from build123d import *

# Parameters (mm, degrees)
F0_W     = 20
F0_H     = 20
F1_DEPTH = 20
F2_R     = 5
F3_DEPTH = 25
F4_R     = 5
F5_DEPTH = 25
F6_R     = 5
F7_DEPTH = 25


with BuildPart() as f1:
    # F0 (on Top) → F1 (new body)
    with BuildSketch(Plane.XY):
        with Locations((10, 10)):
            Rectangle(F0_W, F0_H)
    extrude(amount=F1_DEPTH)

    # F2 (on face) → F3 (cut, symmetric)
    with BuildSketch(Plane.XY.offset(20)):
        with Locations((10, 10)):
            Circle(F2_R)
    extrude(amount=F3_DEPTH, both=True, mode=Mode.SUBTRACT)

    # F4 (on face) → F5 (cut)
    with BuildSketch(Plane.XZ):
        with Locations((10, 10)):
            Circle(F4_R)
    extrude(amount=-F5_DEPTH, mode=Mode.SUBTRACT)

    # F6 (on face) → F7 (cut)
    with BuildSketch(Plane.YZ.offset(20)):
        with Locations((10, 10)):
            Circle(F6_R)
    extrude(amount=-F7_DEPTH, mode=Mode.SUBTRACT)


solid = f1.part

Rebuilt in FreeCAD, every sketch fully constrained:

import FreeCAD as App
import Part
import Sketcher

V = App.Vector


def add_polygon(sketch, points):
    """Adds a closed chain of lines whose ends are joined by coincident constraints."""
    first, n = sketch.GeometryCount, len(points)
    for a, b in zip(points, points[1:] + points[:1]):
        sketch.addGeometry(Part.LineSegment(App.Vector(*a, 0), App.Vector(*b, 0)), False)
    for i in range(n):
        sketch.addConstraint(Sketcher.Constraint("Coincident", first + i, 2, first + (i + 1) % n, 1))

doc = App.newDocument("Part")
body = doc.addObject("PartDesign::Body", "Body")

# Sketch on XY plane
sketch1 = doc.addObject("Sketcher::SketchObject", "Sketch")
body.addObject(sketch1)
sketch1.AttachmentSupport = (doc.XY_Plane, [""])
sketch1.MapMode = "FlatFace"
add_polygon(sketch1, [(0, 20), (0, 0), (20, 0), (20, 20)])  # lines 0-3
sketch1.addConstraint(Sketcher.Constraint("Vertical", 0))
sketch1.addConstraint(Sketcher.Constraint("Horizontal", 1))
sketch1.addConstraint(Sketcher.Constraint("Vertical", 2))
sketch1.addConstraint(Sketcher.Constraint("Horizontal", 3))
sketch1.addConstraint(Sketcher.Constraint("Coincident", 0, 2, -1, 1))
sketch1.addConstraint(Sketcher.Constraint("Equal", 3, 0))
sketch1.addConstraint(Sketcher.Constraint("DistanceX", 1, 1, 1, 2, 20.0))
pad1 = doc.addObject("PartDesign::Pad", "Pad")
body.addObject(pad1)
pad1.Profile = sketch1
pad1.Length = 20

# Sketch on XY plane
sketch2 = doc.addObject("Sketcher::SketchObject", "Sketch001")
body.addObject(sketch2)
sketch2.AttachmentSupport = (doc.XY_Plane, [""])
sketch2.MapMode = "FlatFace"
sketch2.AttachmentOffset = App.Placement(V(0, 0, 20), App.Rotation())
sketch2.addGeometry(Part.Circle(V(10, 10, 0), V(0, 0, 1), 5), False)
sketch2.addConstraint(Sketcher.Constraint("Diameter", 0, 10.0))
sketch2.addConstraint(Sketcher.Constraint("DistanceX", -1, 1, 0, 3, 10.0))
sketch2.addConstraint(Sketcher.Constraint("DistanceY", -1, 1, 0, 3, 10.0))
pocket1 = doc.addObject("PartDesign::Pocket", "Pocket")
body.addObject(pocket1)
pocket1.Profile = sketch2
pocket1.Length = 50
pocket1.Midplane = True

# Sketch on XZ plane
sketch3 = doc.addObject("Sketcher::SketchObject", "Sketch002")
body.addObject(sketch3)
sketch3.AttachmentSupport = (doc.XZ_Plane, [""])
sketch3.MapMode = "FlatFace"
sketch3.addGeometry(Part.Circle(V(10, 10, 0), V(0, 0, 1), 5), False)
sketch3.addConstraint(Sketcher.Constraint("Diameter", 0, 10.0))
sketch3.addConstraint(Sketcher.Constraint("DistanceX", -1, 1, 0, 3, 10.0))
sketch3.addConstraint(Sketcher.Constraint("DistanceY", -1, 1, 0, 3, 10.0))
pocket2 = doc.addObject("PartDesign::Pocket", "Pocket001")
body.addObject(pocket2)
pocket2.Profile = sketch3
pocket2.Length = 25

# Sketch on YZ plane
sketch4 = doc.addObject("Sketcher::SketchObject", "Sketch003")
body.addObject(sketch4)
sketch4.AttachmentSupport = (doc.YZ_Plane, [""])
sketch4.MapMode = "FlatFace"
sketch4.AttachmentOffset = App.Placement(V(0, 0, 20), App.Rotation())
sketch4.addGeometry(Part.Circle(V(10, 10, 0), V(0, 0, 1), 5), False)
sketch4.addConstraint(Sketcher.Constraint("Diameter", 0, 10.0))
sketch4.addConstraint(Sketcher.Constraint("DistanceX", -1, 1, 0, 3, 10.0))
sketch4.addConstraint(Sketcher.Constraint("DistanceY", -1, 1, 0, 3, 10.0))
pocket3 = doc.addObject("PartDesign::Pocket", "Pocket002")
body.addObject(pocket3)
pocket3.Profile = sketch4
pocket3.Length = 25

doc.recompute()
